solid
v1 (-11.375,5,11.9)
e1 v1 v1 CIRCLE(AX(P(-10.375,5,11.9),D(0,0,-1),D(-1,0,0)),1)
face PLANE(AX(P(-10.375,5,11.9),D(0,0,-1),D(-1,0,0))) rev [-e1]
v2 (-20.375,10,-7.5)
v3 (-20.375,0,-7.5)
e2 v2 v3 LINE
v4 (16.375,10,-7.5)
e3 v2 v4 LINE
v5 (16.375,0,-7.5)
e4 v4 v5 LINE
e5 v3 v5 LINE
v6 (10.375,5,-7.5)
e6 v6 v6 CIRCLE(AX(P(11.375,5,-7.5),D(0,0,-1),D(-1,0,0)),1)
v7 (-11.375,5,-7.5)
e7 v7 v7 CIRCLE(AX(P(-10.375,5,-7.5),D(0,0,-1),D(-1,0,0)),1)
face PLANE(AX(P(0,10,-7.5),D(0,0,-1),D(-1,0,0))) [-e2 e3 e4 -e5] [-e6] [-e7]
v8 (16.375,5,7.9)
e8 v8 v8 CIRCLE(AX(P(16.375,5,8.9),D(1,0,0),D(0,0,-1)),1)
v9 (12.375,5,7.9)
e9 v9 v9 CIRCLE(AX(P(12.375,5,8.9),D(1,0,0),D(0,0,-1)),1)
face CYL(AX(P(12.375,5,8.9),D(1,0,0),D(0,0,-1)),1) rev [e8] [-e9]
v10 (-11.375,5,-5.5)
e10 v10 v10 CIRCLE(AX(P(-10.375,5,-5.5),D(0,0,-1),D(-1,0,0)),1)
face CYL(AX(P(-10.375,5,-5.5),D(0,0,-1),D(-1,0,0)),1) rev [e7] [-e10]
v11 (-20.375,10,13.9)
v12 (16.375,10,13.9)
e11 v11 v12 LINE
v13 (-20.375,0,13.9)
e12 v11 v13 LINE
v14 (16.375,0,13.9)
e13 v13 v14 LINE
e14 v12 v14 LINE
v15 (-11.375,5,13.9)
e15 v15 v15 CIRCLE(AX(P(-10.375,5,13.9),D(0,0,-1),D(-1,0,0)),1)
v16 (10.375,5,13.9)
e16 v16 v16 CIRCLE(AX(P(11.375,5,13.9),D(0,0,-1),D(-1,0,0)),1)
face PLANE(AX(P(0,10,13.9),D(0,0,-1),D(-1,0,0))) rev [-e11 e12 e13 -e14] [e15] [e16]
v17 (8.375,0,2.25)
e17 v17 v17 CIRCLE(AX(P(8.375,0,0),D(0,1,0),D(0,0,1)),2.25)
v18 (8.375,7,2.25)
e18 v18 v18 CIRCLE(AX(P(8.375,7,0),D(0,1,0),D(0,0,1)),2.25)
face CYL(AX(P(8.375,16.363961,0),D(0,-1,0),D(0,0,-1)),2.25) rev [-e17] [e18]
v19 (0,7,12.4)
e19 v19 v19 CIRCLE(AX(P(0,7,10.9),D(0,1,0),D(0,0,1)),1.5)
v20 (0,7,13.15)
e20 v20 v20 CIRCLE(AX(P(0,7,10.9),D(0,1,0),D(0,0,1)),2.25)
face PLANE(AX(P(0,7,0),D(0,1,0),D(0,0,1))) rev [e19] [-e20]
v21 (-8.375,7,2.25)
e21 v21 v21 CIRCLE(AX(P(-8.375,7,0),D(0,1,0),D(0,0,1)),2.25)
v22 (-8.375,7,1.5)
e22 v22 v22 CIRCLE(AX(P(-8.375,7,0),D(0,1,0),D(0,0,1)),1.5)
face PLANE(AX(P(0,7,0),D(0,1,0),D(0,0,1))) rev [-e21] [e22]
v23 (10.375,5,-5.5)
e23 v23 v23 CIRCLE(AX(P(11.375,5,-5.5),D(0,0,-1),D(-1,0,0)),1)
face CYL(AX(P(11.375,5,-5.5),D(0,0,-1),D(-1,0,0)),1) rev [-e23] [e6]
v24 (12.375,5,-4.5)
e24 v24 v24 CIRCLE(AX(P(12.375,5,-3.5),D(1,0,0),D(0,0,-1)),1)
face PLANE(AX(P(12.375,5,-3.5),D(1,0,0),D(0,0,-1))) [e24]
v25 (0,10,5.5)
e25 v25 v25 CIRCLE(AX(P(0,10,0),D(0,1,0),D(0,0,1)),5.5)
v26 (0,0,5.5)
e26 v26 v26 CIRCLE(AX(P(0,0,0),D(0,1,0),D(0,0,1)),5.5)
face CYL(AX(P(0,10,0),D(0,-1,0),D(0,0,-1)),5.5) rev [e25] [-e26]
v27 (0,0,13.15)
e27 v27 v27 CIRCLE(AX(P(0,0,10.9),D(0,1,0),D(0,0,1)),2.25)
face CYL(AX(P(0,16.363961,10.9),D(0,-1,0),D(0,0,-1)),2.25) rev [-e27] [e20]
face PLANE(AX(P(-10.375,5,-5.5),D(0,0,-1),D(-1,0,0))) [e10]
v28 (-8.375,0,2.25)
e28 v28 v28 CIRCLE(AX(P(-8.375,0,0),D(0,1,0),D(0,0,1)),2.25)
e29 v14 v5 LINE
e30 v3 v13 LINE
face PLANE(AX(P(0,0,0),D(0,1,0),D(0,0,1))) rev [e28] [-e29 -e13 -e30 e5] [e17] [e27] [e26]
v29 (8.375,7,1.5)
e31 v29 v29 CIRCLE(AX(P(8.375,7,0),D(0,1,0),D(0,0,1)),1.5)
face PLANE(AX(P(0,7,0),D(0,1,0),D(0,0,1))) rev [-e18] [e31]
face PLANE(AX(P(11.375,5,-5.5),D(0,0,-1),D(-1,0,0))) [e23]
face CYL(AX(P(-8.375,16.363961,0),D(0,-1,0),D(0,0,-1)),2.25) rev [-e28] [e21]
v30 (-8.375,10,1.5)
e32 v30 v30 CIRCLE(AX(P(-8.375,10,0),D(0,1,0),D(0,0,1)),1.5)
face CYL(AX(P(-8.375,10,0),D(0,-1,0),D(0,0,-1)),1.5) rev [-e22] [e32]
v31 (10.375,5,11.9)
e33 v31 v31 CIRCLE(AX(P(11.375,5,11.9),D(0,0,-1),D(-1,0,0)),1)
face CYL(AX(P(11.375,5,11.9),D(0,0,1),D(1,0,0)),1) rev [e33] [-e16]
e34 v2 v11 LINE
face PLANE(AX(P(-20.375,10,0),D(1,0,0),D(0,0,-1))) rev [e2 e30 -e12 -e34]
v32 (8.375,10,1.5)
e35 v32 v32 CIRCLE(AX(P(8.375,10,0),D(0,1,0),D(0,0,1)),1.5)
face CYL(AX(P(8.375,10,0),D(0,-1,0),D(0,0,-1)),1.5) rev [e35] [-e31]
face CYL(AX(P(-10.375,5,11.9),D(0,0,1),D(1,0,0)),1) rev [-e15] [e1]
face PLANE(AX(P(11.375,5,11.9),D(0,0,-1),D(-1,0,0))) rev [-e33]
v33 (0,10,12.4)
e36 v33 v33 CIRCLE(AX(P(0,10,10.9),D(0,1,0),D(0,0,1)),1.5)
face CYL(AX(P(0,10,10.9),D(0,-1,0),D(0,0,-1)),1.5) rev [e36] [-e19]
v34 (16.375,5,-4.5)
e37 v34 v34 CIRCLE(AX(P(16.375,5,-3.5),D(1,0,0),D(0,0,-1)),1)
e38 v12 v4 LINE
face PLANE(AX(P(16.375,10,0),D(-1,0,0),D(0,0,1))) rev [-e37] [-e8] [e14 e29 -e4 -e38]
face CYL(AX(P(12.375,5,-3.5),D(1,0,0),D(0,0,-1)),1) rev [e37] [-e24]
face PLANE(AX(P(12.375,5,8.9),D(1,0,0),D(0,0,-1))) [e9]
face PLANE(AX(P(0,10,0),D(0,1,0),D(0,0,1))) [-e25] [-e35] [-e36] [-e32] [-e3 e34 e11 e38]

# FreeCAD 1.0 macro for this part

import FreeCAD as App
import Part
import Sketcher

V = App.Vector


def add_polygon(sketch, points):
    """Adds a closed chain of lines whose ends are joined by coincident constraints."""
    first, n = sketch.GeometryCount, len(points)
    for a, b in zip(points, points[1:] + points[:1]):
        sketch.addGeometry(Part.LineSegment(App.Vector(*a, 0), App.Vector(*b, 0)), False)
    for i in range(n):
        sketch.addConstraint(Sketcher.Constraint("Coincident", first + i, 2, first + (i + 1) % n, 1))

doc = App.newDocument("Part")
body = doc.addObject("PartDesign::Body", "Body")

# Sketch on XZ plane
sketch1 = body.newObject("Sketcher::SketchObject", "Sketch")
sketch1.AttachmentSupport = (doc.getObject("XZ_Plane"), [""])
sketch1.MapMode = "FlatFace"
add_polygon(sketch1, [(-20.4, -7.5), (-20.4, 13.9), (16.4, 13.9), (16.4, -7.5)])  # lines 0-3
sketch1.addGeometry(Part.Circle(V(0, 10.9, 0), V(0, 0, 1), 1.5), False)  # 4
sketch1.addGeometry(Part.Circle(V(-8.4, 0, 0), V(0, 0, 1), 1.5), False)  # 5
sketch1.addGeometry(Part.Circle(V(0, 0, 0), V(0, 0, 1), 5.5), False)  # 6
sketch1.addGeometry(Part.Circle(V(8.4, 0, 0), V(0, 0, 1), 1.5), False)  # 7
sketch1.addConstraint([
    Sketcher.Constraint("Vertical", 0),
    Sketcher.Constraint("Horizontal", 1),
    Sketcher.Constraint("Vertical", 2),
    Sketcher.Constraint("Horizontal", 3),
    Sketcher.Constraint("Coincident", 6, 3, -1, 1),
    Sketcher.Constraint("Equal", 4, 5),
    Sketcher.Constraint("Equal", 5, 7),
    Sketcher.Constraint("Symmetric", 5, 3, 7, 3, -1, 1),
    Sketcher.Constraint("PointOnObject", 4, 3, -2),
    Sketcher.Constraint("PointOnObject", 5, 3, -1),
    Sketcher.Constraint("Diameter", 4, 3.0),
    Sketcher.Constraint("Diameter", 6, 11.0),
    Sketcher.Constraint("DistanceY", 0, 1, 0, 2, 21.4),
    Sketcher.Constraint("DistanceX", 0, 2, 5, 3, 12.0),
    Sketcher.Constraint("DistanceY", 4, 3, 0, 2, 3.0),
    Sketcher.Constraint("DistanceX", 7, 3, 1, 2, 8.0),
    Sketcher.Constraint("DistanceX", 1, 1, 1, 2, 36.75),
    Sketcher.Constraint("DistanceY", -1, 1, 4, 3, 10.9),
])
pad1 = body.newObject("PartDesign::Pad", "Pad")
pad1.Profile = sketch1
pad1.Length = 10
pad1.Reversed = True

# Sketch on XZ plane
sketch2 = body.newObject("Sketcher::SketchObject", "Sketch001")
sketch2.AttachmentSupport = (doc.getObject("XZ_Plane"), [""])
sketch2.MapMode = "FlatFace"
sketch2.addGeometry([
    Part.Circle(V(-8.4, 0, 0), V(0, 0, 1), 2.2),
    Part.Circle(V(8.4, 0, 0), V(0, 0, 1), 2.2),
    Part.Circle(V(0, 10.9, 0), V(0, 0, 1), 2.2),
], False)
sketch2.addConstraint([
    Sketcher.Constraint("Equal", 0, 1),
    Sketcher.Constraint("Equal", 1, 2),
    Sketcher.Constraint("Symmetric", 0, 3, 1, 3, -1, 1),
    Sketcher.Constraint("PointOnObject", 0, 3, -1),
    Sketcher.Constraint("PointOnObject", 2, 3, -2),
    Sketcher.Constraint("Diameter", 0, 4.5),
    Sketcher.Constraint("DistanceY", -1, 1, 2, 3, 10.9),
    Sketcher.Constraint("DistanceX", 0, 3, 1, 3, 16.75),
])
pocket1 = body.newObject("PartDesign::Pocket", "Pocket")
pocket1.Profile = sketch2
pocket1.Length = 7

# Sketch on XY plane
sketch3 = body.newObject("Sketcher::SketchObject", "Sketch002")
sketch3.AttachmentSupport = (doc.getObject("XY_Plane"), [""])
sketch3.MapMode = "FlatFace"
sketch3.AttachmentOffset = App.Placement(V(0, 0, -7.5), App.Rotation())
sketch3.addGeometry([
    Part.Circle(V(11.4, 5, 0), V(0, 0, 1), 1),
    Part.Circle(V(-10.4, 5, 0), V(0, 0, 1), 1),
], False)
sketch3.addConstraint([
    Sketcher.Constraint("Equal", 0, 1),
    Sketcher.Constraint("Horizontal", 0, 3, 1, 3),
    Sketcher.Constraint("Diameter", 0, 2.0),
    Sketcher.Constraint("DistanceY", -1, 1, 0, 3, 5.0),
    Sketcher.Constraint("DistanceX", 1, 3, 0, 3, 21.75),
    Sketcher.Constraint("DistanceX", -1, 1, 0, 3, 11.375),
])
pocket2 = body.newObject("PartDesign::Pocket", "Pocket001")
pocket2.Profile = sketch3
pocket2.Length = 2
pocket2.Reversed = True

# Sketch on XY plane
sketch4 = body.newObject("Sketcher::SketchObject", "Sketch003")
sketch4.AttachmentSupport = (doc.getObject("XY_Plane"), [""])
sketch4.MapMode = "FlatFace"
sketch4.AttachmentOffset = App.Placement(V(0, 0, 11.9), App.Rotation())
sketch4.addGeometry([
    Part.Circle(V(11.4, 5, 0), V(0, 0, 1), 1),
    Part.Circle(V(-10.4, 5, 0), V(0, 0, 1), 1),
], False)
sketch4.addConstraint([
    Sketcher.Constraint("Equal", 0, 1),
    Sketcher.Constraint("Horizontal", 0, 3, 1, 3),
    Sketcher.Constraint("Diameter", 0, 2.0),
    Sketcher.Constraint("DistanceY", -1, 1, 0, 3, 5.0),
    Sketcher.Constraint("DistanceX", 1, 3, 0, 3, 21.75),
    Sketcher.Constraint("DistanceX", -1, 1, 0, 3, 11.375),
])
pocket3 = body.newObject("PartDesign::Pocket", "Pocket002")
pocket3.Profile = sketch4
pocket3.Length = 2
pocket3.Reversed = True

# Sketch on YZ plane
sketch5 = body.newObject("Sketcher::SketchObject", "Sketch004")
sketch5.AttachmentSupport = (doc.getObject("YZ_Plane"), [""])
sketch5.MapMode = "FlatFace"
sketch5.AttachmentOffset = App.Placement(V(0, 0, 16.375), App.Rotation())
sketch5.addGeometry([
    Part.Circle(V(5, 8.9, 0), V(0, 0, 1), 1),
    Part.Circle(V(5, -3.5, 0), V(0, 0, 1), 1),
], False)
sketch5.addConstraint([
    Sketcher.Constraint("Equal", 0, 1),
    Sketcher.Constraint("Vertical", 0, 3, 1, 3),
    Sketcher.Constraint("Diameter", 0, 2.0),
    Sketcher.Constraint("DistanceX", -1, 1, 0, 3, 5.0),
    Sketcher.Constraint("DistanceY", -1, 1, 0, 3, 8.9),
    Sketcher.Constraint("DistanceY", 1, 3, -1, 1, 3.5),
])
pocket4 = body.newObject("PartDesign::Pocket", "Pocket003")
pocket4.Profile = sketch5
pocket4.Length = 4

doc.recompute()
